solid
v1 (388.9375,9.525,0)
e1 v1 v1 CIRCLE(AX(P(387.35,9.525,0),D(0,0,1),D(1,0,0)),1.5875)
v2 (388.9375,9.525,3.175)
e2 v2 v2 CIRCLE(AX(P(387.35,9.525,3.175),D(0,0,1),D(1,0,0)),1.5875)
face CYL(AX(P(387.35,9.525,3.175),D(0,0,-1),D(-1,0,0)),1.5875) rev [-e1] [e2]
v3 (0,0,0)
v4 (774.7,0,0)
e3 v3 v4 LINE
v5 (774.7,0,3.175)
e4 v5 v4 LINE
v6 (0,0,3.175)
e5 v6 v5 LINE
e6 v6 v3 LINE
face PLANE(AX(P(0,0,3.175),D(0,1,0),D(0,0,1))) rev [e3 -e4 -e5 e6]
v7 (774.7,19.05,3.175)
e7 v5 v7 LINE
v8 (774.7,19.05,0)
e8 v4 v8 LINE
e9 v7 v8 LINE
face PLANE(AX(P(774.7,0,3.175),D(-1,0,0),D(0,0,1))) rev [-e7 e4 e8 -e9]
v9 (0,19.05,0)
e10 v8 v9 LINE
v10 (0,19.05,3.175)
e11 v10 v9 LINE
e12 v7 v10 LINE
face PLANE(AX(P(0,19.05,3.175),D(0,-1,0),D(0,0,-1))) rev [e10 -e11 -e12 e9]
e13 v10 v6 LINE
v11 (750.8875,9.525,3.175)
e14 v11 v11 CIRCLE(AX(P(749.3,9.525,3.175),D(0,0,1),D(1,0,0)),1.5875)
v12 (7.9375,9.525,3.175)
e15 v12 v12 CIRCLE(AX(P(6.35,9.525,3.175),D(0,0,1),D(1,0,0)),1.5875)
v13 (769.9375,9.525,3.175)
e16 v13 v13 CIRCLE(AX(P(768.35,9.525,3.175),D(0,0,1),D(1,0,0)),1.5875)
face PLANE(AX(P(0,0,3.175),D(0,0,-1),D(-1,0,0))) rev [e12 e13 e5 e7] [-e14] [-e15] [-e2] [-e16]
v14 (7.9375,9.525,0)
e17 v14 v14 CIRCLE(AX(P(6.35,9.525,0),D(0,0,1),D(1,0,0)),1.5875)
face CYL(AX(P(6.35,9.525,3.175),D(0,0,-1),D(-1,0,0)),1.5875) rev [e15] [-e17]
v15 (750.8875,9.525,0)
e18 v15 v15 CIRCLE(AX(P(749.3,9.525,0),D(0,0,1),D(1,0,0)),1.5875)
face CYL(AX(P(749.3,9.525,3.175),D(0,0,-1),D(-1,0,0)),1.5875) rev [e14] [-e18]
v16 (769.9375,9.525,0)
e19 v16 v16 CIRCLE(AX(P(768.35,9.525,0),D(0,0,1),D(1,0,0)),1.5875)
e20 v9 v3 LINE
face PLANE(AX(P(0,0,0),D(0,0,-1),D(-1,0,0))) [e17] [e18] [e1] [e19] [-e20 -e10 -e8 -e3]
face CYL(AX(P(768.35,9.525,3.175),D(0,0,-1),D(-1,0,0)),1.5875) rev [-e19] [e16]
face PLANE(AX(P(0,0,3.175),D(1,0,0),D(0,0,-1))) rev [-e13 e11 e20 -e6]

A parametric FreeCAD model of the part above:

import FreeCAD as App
import Part
import Sketcher

V = App.Vector
Q = App.Units.Quantity

doc = App.newDocument("Part")
body = doc.addObject("PartDesign::Body", "Body")

# Sketch on XY plane
sketch1 = body.newObject("Sketcher::SketchObject", "Sketch")
sketch1.AttachmentSupport = (doc.getObject("XY_Plane"), [""])
sketch1.MapMode = "FlatFace"
sketch1.addGeometry([
    Part.LineSegment(V(0, 19.1, 0), V(0, 0, 0)),  # 0
    Part.LineSegment(V(0, 0, 0), V(774.7, 0, 0)),  # 1
    Part.LineSegment(V(774.7, 0, 0), V(774.7, 19.1, 0)),  # 2
    Part.LineSegment(V(774.7, 19.1, 0), V(0, 19.1, 0)),  # 3
    Part.Circle(V(6.3, 9.5, 0), V(0, 0, 1), 1.6),  # 4
    Part.Circle(V(387.4, 9.5, 0), V(0, 0, 1), 1.6),  # 5
    Part.Circle(V(749.3, 9.5, 0), V(0, 0, 1), 1.6),  # 6
    Part.Circle(V(768.4, 9.5, 0), V(0, 0, 1), 1.6),  # 7
], False)
sketch1.addConstraint([
    Sketcher.Constraint("Coincident", 0, 2, 1, 1),
    Sketcher.Constraint("Coincident", 1, 2, 2, 1),
    Sketcher.Constraint("Coincident", 2, 2, 3, 1),
    Sketcher.Constraint("Coincident", 3, 2, 0, 1),
    Sketcher.Constraint("Vertical", 0),
    Sketcher.Constraint("Horizontal", 1),
    Sketcher.Constraint("Vertical", 2),
    Sketcher.Constraint("Horizontal", 3),
    Sketcher.Constraint("Coincident", 0, 2, -1, 1),
    Sketcher.Constraint("Equal", 4, 5),
    Sketcher.Constraint("Equal", 5, 6),
    Sketcher.Constraint("Equal", 6, 7),
    Sketcher.Constraint("Horizontal", 4, 3, 5, 3),
    Sketcher.Constraint("Horizontal", 5, 3, 6, 3),
    Sketcher.Constraint("Horizontal", 6, 3, 7, 3),
    Sketcher.Constraint("Diameter", 4, Q("0.125 in")),
    Sketcher.Constraint("DistanceX", 1, 1, 1, 2, Q("30.5 in")),
    Sketcher.Constraint("DistanceX", 4, 3, 5, 3, Q("15 in")),
    Sketcher.Constraint("DistanceX", 5, 3, 7, 3, Q("15 in")),
    Sketcher.Constraint("DistanceX", 6, 3, 1, 2, Q("1 in")),
    Sketcher.Constraint("DistanceY", 0, 2, 0, 1, Q("0.75 in")),
    Sketcher.Constraint("DistanceX", -1, 1, 4, 3, Q("0.25 in")),
    Sketcher.Constraint("DistanceY", -1, 1, 4, 3, Q("0.375 in")),
])
pad1 = body.newObject("PartDesign::Pad", "Pad")
pad1.Profile = sketch1
pad1.Length = Q("0.125 in")

doc.recompute()
